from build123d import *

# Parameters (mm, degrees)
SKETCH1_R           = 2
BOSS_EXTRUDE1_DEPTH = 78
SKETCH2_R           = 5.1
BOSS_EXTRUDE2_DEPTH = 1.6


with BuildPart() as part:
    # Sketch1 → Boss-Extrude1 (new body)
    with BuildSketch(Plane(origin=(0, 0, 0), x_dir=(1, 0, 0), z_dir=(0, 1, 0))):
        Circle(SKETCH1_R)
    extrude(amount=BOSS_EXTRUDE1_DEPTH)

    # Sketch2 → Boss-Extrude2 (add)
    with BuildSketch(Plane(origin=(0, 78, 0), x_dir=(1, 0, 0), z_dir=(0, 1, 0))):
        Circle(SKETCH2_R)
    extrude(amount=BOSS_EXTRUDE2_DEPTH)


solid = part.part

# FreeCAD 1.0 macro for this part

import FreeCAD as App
import Part
import Sketcher

V = App.Vector

doc = App.newDocument("Part")
body = doc.addObject("PartDesign::Body", "Body")

sketch1 = body.newObject("Sketcher::SketchObject", "Sketch")
sketch1.AttachmentSupport = (doc.getObject("XZ_Plane"), [""])
sketch1.MapMode = "FlatFace"
sketch1.addGeometry(Part.Circle(V(0, 0, 0), V(0, 0, 1), 2), False)
sketch1.addConstraint([
    Sketcher.Constraint("Coincident", 0, 3, -1, 1),
    Sketcher.Constraint("Diameter", 0, 4.0),
])
pad1 = body.newObject("PartDesign::Pad", "Pad")
pad1.Profile = sketch1
pad1.Length = 78
pad1.Reversed = True

sketch2 = body.newObject("Sketcher::SketchObject", "Sketch001")
sketch2.AttachmentSupport = (doc.getObject("XZ_Plane"), [""])
sketch2.MapMode = "FlatFace"
sketch2.AttachmentOffset = App.Placement(V(0, 0, -78), App.Rotation())
sketch2.addGeometry(Part.Circle(V(0, 0, 0), V(0, 0, 1), 5), False)
sketch2.addConstraint([
    Sketcher.Constraint("Coincident", 0, 3, -1, 1),
    Sketcher.Constraint("Diameter", 0, 10.2),
])
pad2 = body.newObject("PartDesign::Pad", "Pad001")
pad2.Profile = sketch2
pad2.Length = 1.6
pad2.Reversed = True

doc.recompute()
